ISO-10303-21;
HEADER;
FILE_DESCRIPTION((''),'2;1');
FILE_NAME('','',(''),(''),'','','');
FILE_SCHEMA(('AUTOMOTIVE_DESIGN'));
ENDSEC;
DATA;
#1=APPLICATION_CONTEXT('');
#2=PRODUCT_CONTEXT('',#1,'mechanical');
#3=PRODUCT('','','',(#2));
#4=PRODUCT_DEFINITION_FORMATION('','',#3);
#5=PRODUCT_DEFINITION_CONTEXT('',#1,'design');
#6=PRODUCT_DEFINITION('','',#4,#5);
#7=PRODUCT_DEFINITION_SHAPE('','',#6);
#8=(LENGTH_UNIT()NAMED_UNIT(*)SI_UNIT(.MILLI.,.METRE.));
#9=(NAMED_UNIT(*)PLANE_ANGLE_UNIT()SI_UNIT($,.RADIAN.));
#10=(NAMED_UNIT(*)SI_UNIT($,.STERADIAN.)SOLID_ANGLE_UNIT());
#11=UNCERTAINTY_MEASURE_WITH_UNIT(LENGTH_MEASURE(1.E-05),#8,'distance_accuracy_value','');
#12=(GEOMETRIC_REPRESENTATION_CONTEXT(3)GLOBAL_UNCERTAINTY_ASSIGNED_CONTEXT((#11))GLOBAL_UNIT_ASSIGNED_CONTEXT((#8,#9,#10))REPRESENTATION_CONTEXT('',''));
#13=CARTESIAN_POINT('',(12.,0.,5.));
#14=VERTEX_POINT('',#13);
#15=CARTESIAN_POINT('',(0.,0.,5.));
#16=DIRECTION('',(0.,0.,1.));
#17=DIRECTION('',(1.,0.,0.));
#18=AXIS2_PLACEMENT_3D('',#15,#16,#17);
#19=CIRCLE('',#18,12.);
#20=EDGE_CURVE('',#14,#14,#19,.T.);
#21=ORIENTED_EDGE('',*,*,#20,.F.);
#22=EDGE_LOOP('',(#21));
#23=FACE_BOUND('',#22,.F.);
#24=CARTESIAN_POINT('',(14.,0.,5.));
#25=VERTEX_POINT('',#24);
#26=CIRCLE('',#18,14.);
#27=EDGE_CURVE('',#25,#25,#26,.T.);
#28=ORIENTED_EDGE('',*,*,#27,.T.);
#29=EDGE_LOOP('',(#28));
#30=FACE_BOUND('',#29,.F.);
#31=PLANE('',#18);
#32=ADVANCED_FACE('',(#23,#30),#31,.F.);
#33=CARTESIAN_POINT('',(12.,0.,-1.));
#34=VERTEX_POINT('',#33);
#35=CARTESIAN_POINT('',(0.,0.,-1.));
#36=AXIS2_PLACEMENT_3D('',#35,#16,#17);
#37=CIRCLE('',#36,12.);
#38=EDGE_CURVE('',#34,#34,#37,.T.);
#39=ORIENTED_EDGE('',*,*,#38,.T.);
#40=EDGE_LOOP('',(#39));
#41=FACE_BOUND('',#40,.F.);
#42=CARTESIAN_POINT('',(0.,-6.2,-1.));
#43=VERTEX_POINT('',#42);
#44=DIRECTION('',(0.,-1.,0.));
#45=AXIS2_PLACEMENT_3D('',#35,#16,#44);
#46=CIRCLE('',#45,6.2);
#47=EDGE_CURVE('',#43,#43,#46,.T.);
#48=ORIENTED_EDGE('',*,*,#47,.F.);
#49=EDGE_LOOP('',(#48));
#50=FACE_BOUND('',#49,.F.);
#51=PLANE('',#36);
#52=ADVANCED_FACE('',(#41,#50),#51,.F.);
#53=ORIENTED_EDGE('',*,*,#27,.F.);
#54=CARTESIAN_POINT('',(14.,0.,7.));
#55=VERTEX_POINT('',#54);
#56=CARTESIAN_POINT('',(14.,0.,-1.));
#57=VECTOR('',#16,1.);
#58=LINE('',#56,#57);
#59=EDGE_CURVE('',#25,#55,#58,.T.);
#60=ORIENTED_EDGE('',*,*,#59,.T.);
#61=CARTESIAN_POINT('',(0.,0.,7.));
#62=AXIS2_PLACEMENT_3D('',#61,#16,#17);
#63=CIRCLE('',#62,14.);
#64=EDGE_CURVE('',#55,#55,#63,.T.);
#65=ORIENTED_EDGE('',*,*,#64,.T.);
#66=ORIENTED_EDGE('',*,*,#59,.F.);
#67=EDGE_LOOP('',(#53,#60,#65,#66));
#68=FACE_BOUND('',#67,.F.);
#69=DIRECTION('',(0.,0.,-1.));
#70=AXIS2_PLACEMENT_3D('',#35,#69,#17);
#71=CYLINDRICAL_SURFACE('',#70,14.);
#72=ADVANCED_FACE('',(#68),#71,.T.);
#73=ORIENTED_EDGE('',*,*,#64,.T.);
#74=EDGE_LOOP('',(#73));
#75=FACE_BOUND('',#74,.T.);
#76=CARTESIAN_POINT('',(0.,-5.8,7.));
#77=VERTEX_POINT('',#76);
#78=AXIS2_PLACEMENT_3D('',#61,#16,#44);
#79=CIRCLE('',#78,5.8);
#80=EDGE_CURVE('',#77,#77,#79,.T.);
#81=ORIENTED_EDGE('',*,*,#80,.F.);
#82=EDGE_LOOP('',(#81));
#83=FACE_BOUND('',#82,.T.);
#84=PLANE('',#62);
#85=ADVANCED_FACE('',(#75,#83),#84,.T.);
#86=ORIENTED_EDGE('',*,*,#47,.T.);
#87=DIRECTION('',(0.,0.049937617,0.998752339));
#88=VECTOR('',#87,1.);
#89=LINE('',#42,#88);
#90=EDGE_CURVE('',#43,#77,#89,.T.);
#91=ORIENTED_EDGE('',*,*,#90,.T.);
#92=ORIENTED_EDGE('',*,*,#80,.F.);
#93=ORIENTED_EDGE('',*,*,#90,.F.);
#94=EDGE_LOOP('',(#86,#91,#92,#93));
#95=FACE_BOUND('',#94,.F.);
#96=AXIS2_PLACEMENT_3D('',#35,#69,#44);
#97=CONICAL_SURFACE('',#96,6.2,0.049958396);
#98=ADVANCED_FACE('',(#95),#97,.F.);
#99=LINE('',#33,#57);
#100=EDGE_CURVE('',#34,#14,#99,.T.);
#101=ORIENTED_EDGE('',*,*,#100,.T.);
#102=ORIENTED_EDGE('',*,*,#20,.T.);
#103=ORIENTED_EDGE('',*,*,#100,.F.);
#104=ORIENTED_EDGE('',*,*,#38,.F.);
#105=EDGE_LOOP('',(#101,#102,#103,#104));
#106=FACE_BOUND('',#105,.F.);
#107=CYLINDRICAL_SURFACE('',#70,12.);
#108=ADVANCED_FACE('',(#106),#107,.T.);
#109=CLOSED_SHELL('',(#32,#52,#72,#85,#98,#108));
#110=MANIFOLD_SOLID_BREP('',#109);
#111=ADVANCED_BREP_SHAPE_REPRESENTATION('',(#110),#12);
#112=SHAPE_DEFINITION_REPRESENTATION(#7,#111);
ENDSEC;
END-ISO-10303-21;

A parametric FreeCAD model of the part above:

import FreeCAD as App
import Part
import Sketcher

V = App.Vector
Q = App.Units.Quantity


def add_polygon(sketch, points):
    """Adds a closed chain of lines whose ends are joined by coincident constraints."""
    first, n = sketch.GeometryCount, len(points)
    for a, b in zip(points, points[1:] + points[:1]):
        sketch.addGeometry(Part.LineSegment(App.Vector(*a, 0), App.Vector(*b, 0)), False)
    for i in range(n):
        sketch.addConstraint(Sketcher.Constraint("Coincident", first + i, 2, first + (i + 1) % n, 1))

doc = App.newDocument("Part")
body = doc.addObject("PartDesign::Body", "Body")

# Sketch on XY plane
sketch1 = body.newObject("Sketcher::SketchObject", "Sketch")
sketch1.AttachmentSupport = (doc.getObject("XY_Plane"), [""])
sketch1.MapMode = "FlatFace"
sketch1.addGeometry(Part.Circle(V(0, 0, 0), V(0, 0, 1), 14), False)
sketch1.addConstraint([
    Sketcher.Constraint("Coincident", 0, 3, -1, 1),
    Sketcher.Constraint("Diameter", 0, Q("28 mm")),
])
pad1 = body.newObject("PartDesign::Pad", "Pad")
pad1.Profile = sketch1
pad1.Length = 8

# Sketch on XY plane
sketch2 = body.newObject("Sketcher::SketchObject", "Sketch001")
sketch2.AttachmentSupport = (doc.getObject("XY_Plane"), [""])
sketch2.MapMode = "FlatFace"
sketch2.addGeometry([
    Part.Circle(V(0, 0, 0), V(0, 0, 1), 14),
    Part.Circle(V(0, 0, 0), V(0, 0, 1), 12),
], False)
sketch2.addConstraint([
    Sketcher.Constraint("Coincident", 0, 3, -1, 1),
    Sketcher.Constraint("Coincident", 1, 3, -1, 1),
    Sketcher.Constraint("Diameter", 0, Q("28 mm")),
    Sketcher.Constraint("Diameter", 1, Q("24 mm")),
])
pocket1 = body.newObject("PartDesign::Pocket", "Pocket")
pocket1.Profile = sketch2
pocket1.Length = 6
pocket1.Reversed = True

# Sketch on YZ plane
sketch3 = body.newObject("Sketcher::SketchObject", "Sketch002")
sketch3.AttachmentSupport = (doc.getObject("YZ_Plane"), [""])
sketch3.MapMode = "FlatFace"
add_polygon(sketch3, [(-6, 0), (0, 0), (0, 8), (-6, 8)])  # lines 0-3
sketch3.addConstraint([
    Sketcher.Constraint("Horizontal", 0),
    Sketcher.Constraint("Vertical", 1),
    Sketcher.Constraint("Horizontal", 2),
    Sketcher.Constraint("Coincident", 0, 2, -1, 1),
    Sketcher.Constraint("DistanceY", 1, 1, 1, 2, Q("8 mm")),
    Sketcher.Constraint("DistanceX", 0, 1, 0, 2, Q("6.2 mm")),
    Sketcher.Constraint("DistanceX", 2, 2, 2, 1, Q("5.8 mm")),
])
groove = body.newObject("PartDesign::Groove", "Groove")
groove.Profile = sketch3
groove.ReferenceAxis = (sketch3, ["V_Axis"])
groove.Angle = 360
body2 = doc.addObject("PartDesign::Body", "Body001")
doc.recompute()

body.Placement = App.Placement(V(0, 0, -1), App.Rotation(V(0, 0, 1), 0))
boolean = body2.newObject("PartDesign::Boolean", "Boolean")
boolean.Type = "Fuse"
boolean.addObjects([body])

doc.recompute()
